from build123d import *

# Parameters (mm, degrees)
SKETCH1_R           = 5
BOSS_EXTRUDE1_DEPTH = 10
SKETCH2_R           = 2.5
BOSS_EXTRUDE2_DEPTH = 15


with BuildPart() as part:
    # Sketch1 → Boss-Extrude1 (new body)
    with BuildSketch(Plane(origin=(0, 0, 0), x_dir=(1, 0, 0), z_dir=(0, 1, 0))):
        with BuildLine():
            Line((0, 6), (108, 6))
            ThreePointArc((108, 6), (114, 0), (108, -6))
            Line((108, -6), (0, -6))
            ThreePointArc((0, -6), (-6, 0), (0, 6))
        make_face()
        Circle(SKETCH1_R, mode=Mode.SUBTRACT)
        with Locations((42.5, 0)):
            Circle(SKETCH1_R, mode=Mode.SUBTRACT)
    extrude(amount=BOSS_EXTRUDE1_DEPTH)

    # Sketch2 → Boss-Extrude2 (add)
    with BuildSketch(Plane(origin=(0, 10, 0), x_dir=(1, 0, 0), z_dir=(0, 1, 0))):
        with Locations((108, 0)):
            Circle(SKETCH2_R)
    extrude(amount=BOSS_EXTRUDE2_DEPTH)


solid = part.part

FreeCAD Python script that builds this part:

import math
import FreeCAD as App
import Part
import Sketcher

doc = App.newDocument("Part")
body = doc.addObject("PartDesign::Body", "Body")

# Sketch on XZ plane
sketch1 = body.newObject("Sketcher::SketchObject", "Sketch")
sketch1.AttachmentSupport = (doc.getObject("XZ_Plane"), [""])
sketch1.MapMode = "FlatFace"
sketch1.addGeometry([
    Part.LineSegment(App.Vector(108, -6, 0), App.Vector(0, -6, 0)),  # 0
    Part.ArcOfCircle(Part.Circle(App.Vector(0, 0, 0), App.Vector(0, 0, 1), 6), math.radians(90), math.radians(270)),  # 1
    Part.LineSegment(App.Vector(0, 6, 0), App.Vector(108, 6, 0)),  # 2
    Part.ArcOfCircle(Part.Circle(App.Vector(108, 0, 0), App.Vector(0, 0, 1), 6), math.radians(-90), math.radians(90)),  # 3
    Part.Circle(App.Vector(42, 0, 0), App.Vector(0, 0, 1), 5),  # 4
    Part.Circle(App.Vector(0, 0, 0), App.Vector(0, 0, 1), 5),  # 5
], False)
sketch1.addConstraint([
    Sketcher.Constraint("Tangent", 0, 2, 1, 2),
    Sketcher.Constraint("Tangent", 1, 1, 2, 1),
    Sketcher.Constraint("Tangent", 2, 2, 3, 2),
    Sketcher.Constraint("Tangent", 3, 1, 0, 1),
    Sketcher.Constraint("Horizontal", 0),
    Sketcher.Constraint("Horizontal", 2),
    Sketcher.Constraint("Coincident", 1, 3, -1, 1),
    Sketcher.Constraint("Coincident", 5, 3, -1, 1),
    Sketcher.Constraint("Equal", 4, 5),
    Sketcher.Constraint("PointOnObject", 4, 3, -1),
    Sketcher.Constraint("Diameter", 4, 10.0),
    Sketcher.Constraint("Radius", 1, 6.0),
    Sketcher.Constraint("DistanceX", 0, 2, 0, 1, 108.0),
    Sketcher.Constraint("DistanceX", -1, 1, 4, 3, 42.5),
])
pad1 = body.newObject("PartDesign::Pad", "Pad")
pad1.Profile = sketch1
pad1.Length = 10
pad1.Reversed = True

# Sketch on XZ plane
sketch2 = body.newObject("Sketcher::SketchObject", "Sketch001")
sketch2.AttachmentSupport = (doc.getObject("XZ_Plane"), [""])
sketch2.MapMode = "FlatFace"
sketch2.AttachmentOffset = App.Placement(App.Vector(0, 0, -10), App.Rotation())
sketch2.addGeometry(Part.Circle(App.Vector(108, 0, 0), App.Vector(0, 0, 1), 2.5), False)
sketch2.addConstraint([
    Sketcher.Constraint("PointOnObject", 0, 3, -1),
    Sketcher.Constraint("Diameter", 0, 5.0),
    Sketcher.Constraint("DistanceX", -1, 1, 0, 3, 108.0),
])
pad2 = body.newObject("PartDesign::Pad", "Pad001")
pad2.Profile = sketch2
pad2.Length = 15
pad2.Reversed = True

doc.recompute()
